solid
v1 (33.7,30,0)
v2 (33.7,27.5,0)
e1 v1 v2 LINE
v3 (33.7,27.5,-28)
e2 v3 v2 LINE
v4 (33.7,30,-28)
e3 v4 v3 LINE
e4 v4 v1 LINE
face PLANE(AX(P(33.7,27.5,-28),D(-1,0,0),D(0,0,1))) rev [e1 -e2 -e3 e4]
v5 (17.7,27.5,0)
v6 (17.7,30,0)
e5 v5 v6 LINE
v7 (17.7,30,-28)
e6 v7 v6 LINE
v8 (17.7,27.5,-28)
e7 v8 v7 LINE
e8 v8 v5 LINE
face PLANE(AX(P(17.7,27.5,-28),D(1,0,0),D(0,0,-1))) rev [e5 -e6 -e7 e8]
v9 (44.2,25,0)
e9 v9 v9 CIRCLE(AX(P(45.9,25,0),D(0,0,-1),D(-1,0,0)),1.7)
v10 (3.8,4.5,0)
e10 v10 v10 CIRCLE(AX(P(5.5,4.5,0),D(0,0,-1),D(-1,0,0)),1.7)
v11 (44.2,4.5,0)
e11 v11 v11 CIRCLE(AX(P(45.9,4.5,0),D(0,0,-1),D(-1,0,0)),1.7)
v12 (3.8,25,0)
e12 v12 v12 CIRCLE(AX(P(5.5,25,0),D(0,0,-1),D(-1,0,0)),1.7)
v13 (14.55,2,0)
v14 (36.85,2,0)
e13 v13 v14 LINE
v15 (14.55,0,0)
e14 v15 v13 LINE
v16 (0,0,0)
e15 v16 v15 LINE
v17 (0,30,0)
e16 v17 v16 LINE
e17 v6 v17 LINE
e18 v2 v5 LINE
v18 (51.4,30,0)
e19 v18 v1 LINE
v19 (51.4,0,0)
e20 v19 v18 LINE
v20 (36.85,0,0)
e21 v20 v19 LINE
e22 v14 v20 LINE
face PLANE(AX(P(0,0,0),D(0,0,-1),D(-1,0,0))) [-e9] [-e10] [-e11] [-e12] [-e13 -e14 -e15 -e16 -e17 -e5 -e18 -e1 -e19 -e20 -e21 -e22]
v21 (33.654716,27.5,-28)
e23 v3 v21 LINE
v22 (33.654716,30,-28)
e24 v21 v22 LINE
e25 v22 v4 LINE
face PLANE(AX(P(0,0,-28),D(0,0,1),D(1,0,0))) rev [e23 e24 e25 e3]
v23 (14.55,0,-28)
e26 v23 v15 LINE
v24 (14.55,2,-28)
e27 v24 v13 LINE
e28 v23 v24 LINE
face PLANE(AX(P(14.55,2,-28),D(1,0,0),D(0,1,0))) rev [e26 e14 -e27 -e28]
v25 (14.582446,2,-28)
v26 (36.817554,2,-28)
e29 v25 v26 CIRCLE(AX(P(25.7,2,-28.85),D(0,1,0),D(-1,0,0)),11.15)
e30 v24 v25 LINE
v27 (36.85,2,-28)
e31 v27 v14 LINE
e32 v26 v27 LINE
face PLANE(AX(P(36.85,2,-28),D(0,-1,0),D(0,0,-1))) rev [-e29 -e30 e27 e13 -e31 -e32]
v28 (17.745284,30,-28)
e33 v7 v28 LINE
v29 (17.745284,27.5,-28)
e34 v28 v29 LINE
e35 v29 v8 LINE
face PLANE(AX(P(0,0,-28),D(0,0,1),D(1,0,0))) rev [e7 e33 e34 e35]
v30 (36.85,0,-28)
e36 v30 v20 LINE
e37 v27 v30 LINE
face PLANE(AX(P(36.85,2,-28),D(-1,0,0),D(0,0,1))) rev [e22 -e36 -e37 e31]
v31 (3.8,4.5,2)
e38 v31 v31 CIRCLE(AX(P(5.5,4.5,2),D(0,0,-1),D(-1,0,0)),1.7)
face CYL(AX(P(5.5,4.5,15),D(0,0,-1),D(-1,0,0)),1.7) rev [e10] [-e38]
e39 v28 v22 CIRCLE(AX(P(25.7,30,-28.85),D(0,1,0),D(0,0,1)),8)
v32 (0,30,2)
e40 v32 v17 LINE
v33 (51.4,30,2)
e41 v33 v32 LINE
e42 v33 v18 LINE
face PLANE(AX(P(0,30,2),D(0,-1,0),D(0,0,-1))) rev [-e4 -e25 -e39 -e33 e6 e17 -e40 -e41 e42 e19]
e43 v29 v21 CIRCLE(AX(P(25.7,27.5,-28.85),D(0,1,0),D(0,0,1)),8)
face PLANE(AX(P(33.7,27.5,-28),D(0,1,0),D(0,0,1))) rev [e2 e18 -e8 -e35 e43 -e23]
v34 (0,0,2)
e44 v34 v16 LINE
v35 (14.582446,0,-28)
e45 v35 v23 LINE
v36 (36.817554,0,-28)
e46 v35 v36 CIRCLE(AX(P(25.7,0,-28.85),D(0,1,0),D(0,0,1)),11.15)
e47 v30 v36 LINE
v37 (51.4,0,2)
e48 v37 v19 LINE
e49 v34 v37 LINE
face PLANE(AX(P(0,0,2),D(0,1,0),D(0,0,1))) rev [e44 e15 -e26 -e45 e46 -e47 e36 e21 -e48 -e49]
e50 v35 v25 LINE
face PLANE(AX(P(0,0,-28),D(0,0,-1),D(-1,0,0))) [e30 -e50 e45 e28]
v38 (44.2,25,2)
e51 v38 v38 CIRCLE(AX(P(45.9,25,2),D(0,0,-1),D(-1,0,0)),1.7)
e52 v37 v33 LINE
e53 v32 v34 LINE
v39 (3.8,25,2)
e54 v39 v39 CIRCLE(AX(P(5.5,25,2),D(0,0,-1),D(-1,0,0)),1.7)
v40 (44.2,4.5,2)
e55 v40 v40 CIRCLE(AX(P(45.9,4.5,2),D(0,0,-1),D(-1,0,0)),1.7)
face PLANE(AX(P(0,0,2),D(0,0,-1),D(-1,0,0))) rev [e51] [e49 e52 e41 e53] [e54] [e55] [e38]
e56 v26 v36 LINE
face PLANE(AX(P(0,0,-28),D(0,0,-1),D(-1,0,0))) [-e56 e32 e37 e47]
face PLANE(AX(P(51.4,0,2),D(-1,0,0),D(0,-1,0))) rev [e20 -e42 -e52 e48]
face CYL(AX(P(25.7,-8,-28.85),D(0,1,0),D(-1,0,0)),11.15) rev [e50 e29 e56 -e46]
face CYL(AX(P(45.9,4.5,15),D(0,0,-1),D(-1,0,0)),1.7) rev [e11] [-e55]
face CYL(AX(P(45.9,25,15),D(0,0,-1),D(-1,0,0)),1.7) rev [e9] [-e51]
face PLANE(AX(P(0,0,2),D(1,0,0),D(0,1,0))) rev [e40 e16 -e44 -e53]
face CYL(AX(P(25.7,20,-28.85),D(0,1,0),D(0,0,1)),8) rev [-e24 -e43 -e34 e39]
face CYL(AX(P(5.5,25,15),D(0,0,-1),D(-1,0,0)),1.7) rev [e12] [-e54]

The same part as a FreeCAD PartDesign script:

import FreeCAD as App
import Part
import Sketcher
Q = App.Units.Quantity

doc = App.newDocument("Part")
params = doc.addObject("Spreadsheet::Sheet", "Params")
for row, (alias, value) in enumerate([
    ("sketch1_height", "30 mm"),
    ("sketch1_width", "51.4 mm"),
    ("pad1_length", "2 mm"),
    ("sketch2_diameter", "3.4 mm"),
    ("pocket1_length", "15 mm"),
    ("sketch3_width", "16 mm"),
    ("sketch3_height", "2 mm"),
    ("sketch3_width2", "22.3 mm"),
    ("sketch3_height2", "2.5 mm"),
    ("pad2_length", "28 mm"),
    ("sketch4_diameter", "16 mm"),
    ("pocket2_length", "10 mm"),
    ("sketch5_diameter", "22.3 mm"),
    ("pocket3_length", "10 mm"),
], start=1):
    params.set(f"A{row}", alias)
    params.set(f"B{row}", "=" + value)
    params.setAlias(f"B{row}", alias)

body = doc.addObject("PartDesign::Body", "Body")

sketch1 = body.newObject("Sketcher::SketchObject", "Sketch")
sketch1.AttachmentSupport = (doc.getObject("XY_Plane"), [""])
sketch1.MapMode = "FlatFace"
sketch1.addGeometry([
    Part.LineSegment(App.Vector(0, 30, 0), App.Vector(0, 0, 0)),
    Part.LineSegment(App.Vector(0, 0, 0), App.Vector(51.4, 0, 0)),
    Part.LineSegment(App.Vector(51.4, 0, 0), App.Vector(51.4, 30, 0)),
    Part.LineSegment(App.Vector(51.4, 30, 0), App.Vector(0, 30, 0)),
], False)
sketch1.addConstraint([
    Sketcher.Constraint("Coincident", 0, 2, 1, 1),
    Sketcher.Constraint("Coincident", 1, 2, 2, 1),
    Sketcher.Constraint("Coincident", 2, 2, 3, 1),
    Sketcher.Constraint("Coincident", 3, 2, 0, 1),
    Sketcher.Constraint("Vertical", 0),
    Sketcher.Constraint("Horizontal", 1),
    Sketcher.Constraint("Vertical", 2),
    Sketcher.Constraint("Horizontal", 3),
    Sketcher.Constraint("Coincident", 0, 2, -1, 1),
    Sketcher.Constraint("DistanceY", 0, 2, 0, 1, Q("30 mm")),
    Sketcher.Constraint("DistanceX", 1, 1, 1, 2, Q("51.4 mm")),
])
sketch1.setExpression("Constraints[9]", "Params.sketch1_height")
sketch1.setExpression("Constraints[10]", "Params.sketch1_width")
pad1 = body.newObject("PartDesign::Pad", "Pad")
pad1.Profile = sketch1
pad1.setExpression("Length", "Params.pad1_length")

sketch2 = body.newObject("Sketcher::SketchObject", "Sketch001")
sketch2.AttachmentSupport = (doc.getObject("XY_Plane"), [""])
sketch2.MapMode = "FlatFace"
sketch2.addGeometry([
    Part.Circle(App.Vector(45.9, 25, 0), App.Vector(0, 0, 1), 1.7),
    Part.Circle(App.Vector(5.5, 25, 0), App.Vector(0, 0, 1), 1.7),
    Part.Circle(App.Vector(5.5, 4.5, 0), App.Vector(0, 0, 1), 1.7),
    Part.Circle(App.Vector(45.9, 4.5, 0), App.Vector(0, 0, 1), 1.7),
], False)
sketch2.addConstraint([
    Sketcher.Constraint("Equal", 0, 1),
    Sketcher.Constraint("Equal", 1, 2),
    Sketcher.Constraint("Equal", 2, 3),
    Sketcher.Constraint("Horizontal", 0, 3, 1, 3),
    Sketcher.Constraint("Horizontal", 2, 3, 3, 3),
    Sketcher.Constraint("Vertical", 1, 3, 2, 3),
    Sketcher.Constraint("Vertical", 0, 3, 3, 3),
    Sketcher.Constraint("Diameter", 0, Q("3.4 mm")),
    Sketcher.Constraint("DistanceY", -1, 1, 0, 3, Q("25 mm")),
    Sketcher.Constraint("DistanceX", -1, 1, 0, 3, Q("45.9 mm")),
    Sketcher.Constraint("DistanceX", -1, 1, 1, 3, Q("5.5 mm")),
    Sketcher.Constraint("DistanceY", -1, 1, 2, 3, Q("4.5 mm")),
])
sketch2.setExpression("Constraints[7]", "Params.sketch2_diameter")
pocket1 = body.newObject("PartDesign::Pocket", "Pocket")
pocket1.Profile = sketch2
pocket1.setExpression("Length", "Params.pocket1_length")
pocket1.Reversed = True

sketch3 = body.newObject("Sketcher::SketchObject", "Sketch002")
sketch3.AttachmentSupport = (doc.getObject("XY_Plane"), [""])
sketch3.MapMode = "FlatFace"
sketch3.addGeometry([
    Part.LineSegment(App.Vector(33.7, 30, 0), App.Vector(33.7, 27.5, 0)),
    Part.LineSegment(App.Vector(33.7, 27.5, 0), App.Vector(17.7, 27.5, 0)),
    Part.LineSegment(App.Vector(17.7, 27.5, 0), App.Vector(17.7, 30, 0)),
    Part.LineSegment(App.Vector(17.7, 30, 0), App.Vector(33.7, 30, 0)),
    Part.LineSegment(App.Vector(36.85, 2, 0), App.Vector(36.85, 0, 0)),
    Part.LineSegment(App.Vector(36.85, 0, 0), App.Vector(14.55, 0, 0)),
    Part.LineSegment(App.Vector(14.55, 0, 0), App.Vector(14.55, 2, 0)),
    Part.LineSegment(App.Vector(14.55, 2, 0), App.Vector(36.85, 2, 0)),
], False)
sketch3.addConstraint([
    Sketcher.Constraint("Coincident", 0, 2, 1, 1),
    Sketcher.Constraint("Coincident", 1, 2, 2, 1),
    Sketcher.Constraint("Coincident", 2, 2, 3, 1),
    Sketcher.Constraint("Coincident", 3, 2, 0, 1),
    Sketcher.Constraint("Coincident", 4, 2, 5, 1),
    Sketcher.Constraint("Coincident", 5, 2, 6, 1),
    Sketcher.Constraint("Coincident", 6, 2, 7, 1),
    Sketcher.Constraint("Coincident", 7, 2, 4, 1),
    Sketcher.Constraint("Vertical", 0),
    Sketcher.Constraint("Horizontal", 1),
    Sketcher.Constraint("Vertical", 2),
    Sketcher.Constraint("Horizontal", 3),
    Sketcher.Constraint("Vertical", 4),
    Sketcher.Constraint("Horizontal", 5),
    Sketcher.Constraint("Vertical", 6),
    Sketcher.Constraint("Horizontal", 7),
    Sketcher.Constraint("PointOnObject", 4, 2, -1),
    Sketcher.Constraint("DistanceX", 1, 2, 1, 1, Q("16 mm")),
    Sketcher.Constraint("DistanceY", 4, 2, 4, 1, Q("2 mm")),
    Sketcher.Constraint("DistanceX", 5, 2, 5, 1, Q("22.3 mm")),
    Sketcher.Constraint("DistanceY", 0, 2, 0, 1, Q("2.5 mm")),
    Sketcher.Constraint("DistanceY", -1, 1, 2, 2, Q("30 mm")),
    Sketcher.Constraint("DistanceX", -1, 1, 0, 2, Q("33.7 mm")),
    Sketcher.Constraint("DistanceX", -1, 1, 4, 2, Q("36.85 mm")),
])
sketch3.setExpression("Constraints[17]", "Params.sketch3_width")
sketch3.setExpression("Constraints[18]", "Params.sketch3_height")
sketch3.setExpression("Constraints[19]", "Params.sketch3_width2")
sketch3.setExpression("Constraints[20]", "Params.sketch3_height2")
pad2 = body.newObject("PartDesign::Pad", "Pad001")
pad2.Profile = sketch3
pad2.setExpression("Length", "Params.pad2_length")
pad2.Reversed = True

sketch4 = body.newObject("Sketcher::SketchObject", "Sketch003")
sketch4.AttachmentSupport = (doc.getObject("XZ_Plane"), [""])
sketch4.MapMode = "FlatFace"
sketch4.AttachmentOffset = App.Placement(App.Vector(0, 0, -30), App.Rotation())
sketch4.addGeometry(Part.Circle(App.Vector(25.7, -28.85, 0), App.Vector(0, 0, 1), 8), False)
sketch4.addConstraint([
    Sketcher.Constraint("Diameter", 0, Q("16 mm")),
    Sketcher.Constraint("DistanceX", -1, 1, 0, 3, Q("25.7 mm")),
    Sketcher.Constraint("DistanceY", 0, 3, -1, 1, Q("28.85 mm")),
])
sketch4.setExpression("Constraints[0]", "Params.sketch4_diameter")
pocket2 = body.newObject("PartDesign::Pocket", "Pocket001")
pocket2.Profile = sketch4
pocket2.setExpression("Length", "Params.pocket2_length")
pocket2.Reversed = True

sketch5 = body.newObject("Sketcher::SketchObject", "Sketch004")
sketch5.AttachmentSupport = (doc.getObject("XZ_Plane"), [""])
sketch5.MapMode = "FlatFace"
sketch5.AttachmentOffset = App.Placement(App.Vector(0, 0, -2), App.Rotation())
sketch5.addGeometry(Part.Circle(App.Vector(25.7, -28.85, 0), App.Vector(0, 0, 1), 11.15), False)
sketch5.addConstraint([
    Sketcher.Constraint("Diameter", 0, Q("22.3 mm")),
    Sketcher.Constraint("DistanceX", -1, 1, 0, 3, Q("25.7 mm")),
    Sketcher.Constraint("DistanceY", 0, 3, -1, 1, Q("28.85 mm")),
])
sketch5.setExpression("Constraints[0]", "Params.sketch5_diameter")
pocket3 = body.newObject("PartDesign::Pocket", "Pocket002")
pocket3.Profile = sketch5
pocket3.setExpression("Length", "Params.pocket3_length")
pocket3.Reversed = True

doc.recompute()
